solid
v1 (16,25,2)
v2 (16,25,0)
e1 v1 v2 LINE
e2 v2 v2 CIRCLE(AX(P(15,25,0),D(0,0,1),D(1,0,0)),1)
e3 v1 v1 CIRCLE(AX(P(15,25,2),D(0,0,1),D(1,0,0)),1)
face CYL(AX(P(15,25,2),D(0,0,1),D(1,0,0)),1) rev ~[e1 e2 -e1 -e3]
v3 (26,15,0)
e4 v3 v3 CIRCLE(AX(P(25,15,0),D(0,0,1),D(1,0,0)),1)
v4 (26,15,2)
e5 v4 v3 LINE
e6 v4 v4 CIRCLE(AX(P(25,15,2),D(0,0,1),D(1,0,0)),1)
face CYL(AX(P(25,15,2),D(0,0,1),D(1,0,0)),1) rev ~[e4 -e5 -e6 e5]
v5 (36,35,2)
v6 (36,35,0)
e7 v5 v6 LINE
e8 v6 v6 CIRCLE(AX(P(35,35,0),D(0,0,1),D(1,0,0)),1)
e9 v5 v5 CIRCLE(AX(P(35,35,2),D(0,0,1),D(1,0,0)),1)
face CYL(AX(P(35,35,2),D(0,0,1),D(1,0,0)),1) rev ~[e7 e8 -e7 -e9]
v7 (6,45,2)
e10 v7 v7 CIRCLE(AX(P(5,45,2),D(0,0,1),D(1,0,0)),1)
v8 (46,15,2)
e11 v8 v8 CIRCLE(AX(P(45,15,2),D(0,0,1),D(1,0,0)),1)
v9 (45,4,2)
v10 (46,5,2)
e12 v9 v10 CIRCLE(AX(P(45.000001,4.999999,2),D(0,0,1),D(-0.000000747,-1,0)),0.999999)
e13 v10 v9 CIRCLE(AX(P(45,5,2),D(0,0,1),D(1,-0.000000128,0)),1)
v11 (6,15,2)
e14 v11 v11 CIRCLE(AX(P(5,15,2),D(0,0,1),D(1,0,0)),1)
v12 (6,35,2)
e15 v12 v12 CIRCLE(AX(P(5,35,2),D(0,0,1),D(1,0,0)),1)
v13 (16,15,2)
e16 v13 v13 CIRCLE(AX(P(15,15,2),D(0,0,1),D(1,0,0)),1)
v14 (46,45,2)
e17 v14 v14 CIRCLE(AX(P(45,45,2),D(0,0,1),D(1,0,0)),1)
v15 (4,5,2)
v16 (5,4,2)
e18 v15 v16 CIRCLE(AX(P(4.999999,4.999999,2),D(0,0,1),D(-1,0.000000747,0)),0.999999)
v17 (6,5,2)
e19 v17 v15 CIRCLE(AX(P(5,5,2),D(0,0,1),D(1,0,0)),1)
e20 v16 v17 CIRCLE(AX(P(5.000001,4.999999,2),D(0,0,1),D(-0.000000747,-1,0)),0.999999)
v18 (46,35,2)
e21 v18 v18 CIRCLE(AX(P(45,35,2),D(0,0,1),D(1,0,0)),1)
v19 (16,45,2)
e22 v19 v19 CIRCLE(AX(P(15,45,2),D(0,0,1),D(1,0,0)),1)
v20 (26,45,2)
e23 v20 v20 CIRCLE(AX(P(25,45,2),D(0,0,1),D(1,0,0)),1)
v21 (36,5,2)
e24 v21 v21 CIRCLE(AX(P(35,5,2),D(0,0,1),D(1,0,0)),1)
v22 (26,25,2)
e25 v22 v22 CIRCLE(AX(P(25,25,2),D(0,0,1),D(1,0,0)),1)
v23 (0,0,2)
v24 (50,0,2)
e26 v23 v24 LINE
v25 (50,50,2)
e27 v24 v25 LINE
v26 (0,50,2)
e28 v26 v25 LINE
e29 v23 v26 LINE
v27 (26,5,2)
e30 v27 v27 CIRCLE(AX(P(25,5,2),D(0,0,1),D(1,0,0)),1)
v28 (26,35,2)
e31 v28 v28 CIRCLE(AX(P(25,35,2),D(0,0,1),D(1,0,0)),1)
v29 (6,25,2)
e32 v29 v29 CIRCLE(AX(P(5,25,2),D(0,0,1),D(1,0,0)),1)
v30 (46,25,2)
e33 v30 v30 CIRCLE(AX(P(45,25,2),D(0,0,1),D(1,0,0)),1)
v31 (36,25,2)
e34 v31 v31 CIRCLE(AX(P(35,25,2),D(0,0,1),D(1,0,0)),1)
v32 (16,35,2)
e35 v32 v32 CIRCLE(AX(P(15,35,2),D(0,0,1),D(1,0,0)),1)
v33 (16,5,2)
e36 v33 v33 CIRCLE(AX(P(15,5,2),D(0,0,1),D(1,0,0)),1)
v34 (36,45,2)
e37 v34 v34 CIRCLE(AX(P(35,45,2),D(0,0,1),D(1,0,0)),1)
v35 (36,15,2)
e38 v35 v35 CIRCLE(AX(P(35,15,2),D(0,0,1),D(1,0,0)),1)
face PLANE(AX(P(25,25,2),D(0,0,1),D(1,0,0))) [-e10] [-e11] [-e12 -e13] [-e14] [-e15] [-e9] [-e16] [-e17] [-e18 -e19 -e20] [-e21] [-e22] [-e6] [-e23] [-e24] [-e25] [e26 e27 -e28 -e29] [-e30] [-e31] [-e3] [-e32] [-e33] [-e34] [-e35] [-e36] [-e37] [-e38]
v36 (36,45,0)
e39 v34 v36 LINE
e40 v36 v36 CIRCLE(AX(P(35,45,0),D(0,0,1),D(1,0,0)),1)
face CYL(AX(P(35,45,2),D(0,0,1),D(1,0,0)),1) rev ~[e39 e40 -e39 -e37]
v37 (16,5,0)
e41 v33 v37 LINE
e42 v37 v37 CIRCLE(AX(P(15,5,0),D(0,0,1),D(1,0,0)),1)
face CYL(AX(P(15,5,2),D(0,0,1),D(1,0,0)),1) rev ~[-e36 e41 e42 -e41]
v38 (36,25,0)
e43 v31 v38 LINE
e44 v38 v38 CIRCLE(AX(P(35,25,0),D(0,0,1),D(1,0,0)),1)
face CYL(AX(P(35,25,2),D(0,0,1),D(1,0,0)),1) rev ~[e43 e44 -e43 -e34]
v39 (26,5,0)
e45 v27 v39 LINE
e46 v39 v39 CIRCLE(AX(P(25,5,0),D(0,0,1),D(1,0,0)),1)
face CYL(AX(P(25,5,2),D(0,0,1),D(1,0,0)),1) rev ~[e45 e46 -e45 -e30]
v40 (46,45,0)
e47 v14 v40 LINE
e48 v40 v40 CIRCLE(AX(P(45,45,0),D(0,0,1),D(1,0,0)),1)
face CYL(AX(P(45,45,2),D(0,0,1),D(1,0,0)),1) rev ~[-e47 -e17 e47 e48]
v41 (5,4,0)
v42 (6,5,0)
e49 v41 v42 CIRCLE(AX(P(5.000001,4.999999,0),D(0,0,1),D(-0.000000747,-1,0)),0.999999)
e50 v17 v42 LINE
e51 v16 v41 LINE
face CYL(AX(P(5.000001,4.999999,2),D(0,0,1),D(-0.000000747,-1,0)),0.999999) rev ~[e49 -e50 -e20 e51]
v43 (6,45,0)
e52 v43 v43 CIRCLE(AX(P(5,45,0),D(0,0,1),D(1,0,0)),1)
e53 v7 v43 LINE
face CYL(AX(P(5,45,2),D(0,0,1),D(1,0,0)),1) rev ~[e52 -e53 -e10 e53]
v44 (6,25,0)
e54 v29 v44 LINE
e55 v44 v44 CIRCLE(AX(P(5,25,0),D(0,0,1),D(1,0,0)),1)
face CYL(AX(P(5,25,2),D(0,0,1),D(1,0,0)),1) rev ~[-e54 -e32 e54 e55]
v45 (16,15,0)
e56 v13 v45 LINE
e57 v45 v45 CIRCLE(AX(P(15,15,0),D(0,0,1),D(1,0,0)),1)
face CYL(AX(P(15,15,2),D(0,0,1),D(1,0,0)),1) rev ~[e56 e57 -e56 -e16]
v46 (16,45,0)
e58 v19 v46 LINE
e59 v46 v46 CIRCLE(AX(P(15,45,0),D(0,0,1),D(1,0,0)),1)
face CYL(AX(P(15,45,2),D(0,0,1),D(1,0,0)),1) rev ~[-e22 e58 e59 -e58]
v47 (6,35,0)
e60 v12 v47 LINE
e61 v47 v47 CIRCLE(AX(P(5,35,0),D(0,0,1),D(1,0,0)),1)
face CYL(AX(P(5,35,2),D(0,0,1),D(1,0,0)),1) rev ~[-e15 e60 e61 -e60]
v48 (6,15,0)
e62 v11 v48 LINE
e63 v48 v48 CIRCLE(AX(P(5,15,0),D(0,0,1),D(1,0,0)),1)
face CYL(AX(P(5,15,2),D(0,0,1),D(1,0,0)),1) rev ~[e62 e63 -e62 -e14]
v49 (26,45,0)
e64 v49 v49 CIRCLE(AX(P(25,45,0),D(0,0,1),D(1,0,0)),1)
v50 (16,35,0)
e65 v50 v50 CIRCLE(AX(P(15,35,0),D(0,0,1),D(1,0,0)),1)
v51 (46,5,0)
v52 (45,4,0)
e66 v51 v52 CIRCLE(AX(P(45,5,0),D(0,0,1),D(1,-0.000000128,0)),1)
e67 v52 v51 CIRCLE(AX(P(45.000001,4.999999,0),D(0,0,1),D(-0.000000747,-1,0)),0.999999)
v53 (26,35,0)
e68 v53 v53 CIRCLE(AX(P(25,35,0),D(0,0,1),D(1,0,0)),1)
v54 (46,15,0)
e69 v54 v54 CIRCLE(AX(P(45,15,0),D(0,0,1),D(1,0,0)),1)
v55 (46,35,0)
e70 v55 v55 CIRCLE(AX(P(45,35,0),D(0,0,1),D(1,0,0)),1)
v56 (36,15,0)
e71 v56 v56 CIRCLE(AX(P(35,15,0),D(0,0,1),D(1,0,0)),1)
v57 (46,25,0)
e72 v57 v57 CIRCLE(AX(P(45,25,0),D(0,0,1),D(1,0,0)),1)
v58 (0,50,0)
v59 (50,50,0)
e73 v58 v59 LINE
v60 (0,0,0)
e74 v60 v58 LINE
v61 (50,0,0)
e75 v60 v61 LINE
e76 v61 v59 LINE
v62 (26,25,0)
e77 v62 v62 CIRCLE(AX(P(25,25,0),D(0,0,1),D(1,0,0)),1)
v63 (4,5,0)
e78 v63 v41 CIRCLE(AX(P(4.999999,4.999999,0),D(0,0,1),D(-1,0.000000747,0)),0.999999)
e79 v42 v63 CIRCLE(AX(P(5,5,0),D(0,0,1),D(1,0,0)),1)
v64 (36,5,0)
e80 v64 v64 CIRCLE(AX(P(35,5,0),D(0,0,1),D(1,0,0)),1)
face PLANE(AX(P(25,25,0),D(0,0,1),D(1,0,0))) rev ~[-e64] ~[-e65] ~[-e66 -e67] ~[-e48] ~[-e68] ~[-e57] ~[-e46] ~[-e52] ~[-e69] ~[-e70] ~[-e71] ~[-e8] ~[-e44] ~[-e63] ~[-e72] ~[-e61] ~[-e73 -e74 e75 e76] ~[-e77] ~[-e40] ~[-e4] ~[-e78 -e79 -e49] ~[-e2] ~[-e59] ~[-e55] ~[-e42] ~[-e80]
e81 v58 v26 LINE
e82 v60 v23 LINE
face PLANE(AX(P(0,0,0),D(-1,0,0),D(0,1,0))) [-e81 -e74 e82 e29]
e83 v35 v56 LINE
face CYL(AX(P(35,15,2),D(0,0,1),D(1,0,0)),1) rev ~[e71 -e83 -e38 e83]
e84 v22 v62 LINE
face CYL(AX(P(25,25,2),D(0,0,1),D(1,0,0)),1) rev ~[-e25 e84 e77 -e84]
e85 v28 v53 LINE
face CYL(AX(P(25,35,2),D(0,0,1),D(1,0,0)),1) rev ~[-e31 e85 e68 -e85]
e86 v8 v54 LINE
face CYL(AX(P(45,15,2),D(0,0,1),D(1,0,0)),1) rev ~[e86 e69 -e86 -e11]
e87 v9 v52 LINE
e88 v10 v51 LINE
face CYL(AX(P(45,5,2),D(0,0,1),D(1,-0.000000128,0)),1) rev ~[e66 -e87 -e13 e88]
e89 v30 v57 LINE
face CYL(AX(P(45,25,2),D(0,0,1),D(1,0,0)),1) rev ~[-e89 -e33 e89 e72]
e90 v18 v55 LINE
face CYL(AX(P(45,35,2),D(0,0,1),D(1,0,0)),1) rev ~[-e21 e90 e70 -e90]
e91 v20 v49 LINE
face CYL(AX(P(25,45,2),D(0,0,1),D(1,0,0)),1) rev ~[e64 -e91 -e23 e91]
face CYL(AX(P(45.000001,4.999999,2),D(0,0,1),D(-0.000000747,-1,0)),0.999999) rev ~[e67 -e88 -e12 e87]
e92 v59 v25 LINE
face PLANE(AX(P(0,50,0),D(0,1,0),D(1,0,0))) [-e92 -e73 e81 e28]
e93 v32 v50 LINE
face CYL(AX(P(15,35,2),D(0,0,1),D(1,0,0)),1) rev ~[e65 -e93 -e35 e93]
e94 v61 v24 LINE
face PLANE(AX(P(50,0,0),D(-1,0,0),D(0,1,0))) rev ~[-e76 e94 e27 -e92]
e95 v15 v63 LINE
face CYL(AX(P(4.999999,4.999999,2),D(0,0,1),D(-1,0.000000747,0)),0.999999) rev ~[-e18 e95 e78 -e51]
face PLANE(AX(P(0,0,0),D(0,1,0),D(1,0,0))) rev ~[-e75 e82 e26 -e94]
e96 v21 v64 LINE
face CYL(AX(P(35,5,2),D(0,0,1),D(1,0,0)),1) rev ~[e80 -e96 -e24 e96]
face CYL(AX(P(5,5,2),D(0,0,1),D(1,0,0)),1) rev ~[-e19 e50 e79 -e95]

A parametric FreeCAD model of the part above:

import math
import FreeCAD as App
import Part
import Sketcher
from FreeCAD import Vector
Q = App.Units.Quantity

doc = App.newDocument("Part")
body = doc.addObject("PartDesign::Body", "Body")

sketch1 = body.newObject("Sketcher::SketchObject", "Sketch")
sketch1.AttachmentSupport = (doc.getObject("XY_Plane"), [""])
sketch1.MapMode = "FlatFace"
sketch1.addGeometry([
    Part.LineSegment(Vector(0, 50, 0), Vector(0, 0, 0)),
    Part.LineSegment(Vector(0, 0, 0), Vector(50, 0, 0)),
    Part.LineSegment(Vector(50, 0, 0), Vector(50, 50, 0)),
    Part.LineSegment(Vector(50, 50, 0), Vector(0, 50, 0)),
], False)
sketch1.addConstraint([
    Sketcher.Constraint("Coincident", 0, 2, 1, 1),
    Sketcher.Constraint("Coincident", 1, 2, 2, 1),
    Sketcher.Constraint("Coincident", 2, 2, 3, 1),
    Sketcher.Constraint("Coincident", 3, 2, 0, 1),
    Sketcher.Constraint("Vertical", 0),
    Sketcher.Constraint("Horizontal", 1),
    Sketcher.Constraint("Vertical", 2),
    Sketcher.Constraint("Horizontal", 3),
    Sketcher.Constraint("Coincident", 0, 2, -1, 1),
    Sketcher.Constraint("Equal", 3, 0),
    Sketcher.Constraint("DistanceX", 1, 1, 1, 2, Q("50 mm")),
])
pad1 = body.newObject("PartDesign::Pad", "Pad")
pad1.Profile = sketch1
pad1.Length = 2

sketch2 = body.newObject("Sketcher::SketchObject", "Sketch001")
sketch2.AttachmentSupport = (doc.getObject("XY_Plane"), [""])
sketch2.MapMode = "FlatFace"
sketch2.AttachmentOffset = App.Placement(Vector(0, 0, 2), App.Rotation())
sketch2.addGeometry([
    Part.ArcOfCircle(Part.Circle(Vector(5, 5, 0), Vector(0, 0, 1), 1), math.radians(-90), math.radians(0)),
    Part.ArcOfCircle(Part.Circle(Vector(5, 5, 0), Vector(0, 0, 1), 1), math.radians(0), math.radians(180)),
    Part.ArcOfCircle(Part.Circle(Vector(5, 5, 0), Vector(0, 0, 1), 1), math.radians(180), math.radians(270)),
    Part.ArcOfCircle(Part.Circle(Vector(45, 5, 0), Vector(0, 0, 1), 1), math.radians(-90), math.radians(0)),
    Part.ArcOfCircle(Part.Circle(Vector(45, 5, 0), Vector(0, 0, 1), 1), math.radians(0), math.radians(270)),
    Part.Circle(Vector(5, 15, 0), Vector(0, 0, 1), 1),
    Part.Circle(Vector(5, 25, 0), Vector(0, 0, 1), 1),
    Part.Circle(Vector(5, 35, 0), Vector(0, 0, 1), 1),
    Part.Circle(Vector(5, 45, 0), Vector(0, 0, 1), 1),
    Part.Circle(Vector(15, 5, 0), Vector(0, 0, 1), 1),
    Part.Circle(Vector(15, 15, 0), Vector(0, 0, 1), 1),
    Part.Circle(Vector(15, 25, 0), Vector(0, 0, 1), 1),
    Part.Circle(Vector(15, 35, 0), Vector(0, 0, 1), 1),
    Part.Circle(Vector(15, 45, 0), Vector(0, 0, 1), 1),
    Part.Circle(Vector(25, 5, 0), Vector(0, 0, 1), 1),
    Part.Circle(Vector(25, 15, 0), Vector(0, 0, 1), 1),
    Part.Circle(Vector(25, 25, 0), Vector(0, 0, 1), 1),
    Part.Circle(Vector(25, 35, 0), Vector(0, 0, 1), 1),
    Part.Circle(Vector(25, 45, 0), Vector(0, 0, 1), 1),
    Part.Circle(Vector(35, 5, 0), Vector(0, 0, 1), 1),
    Part.Circle(Vector(35, 15, 0), Vector(0, 0, 1), 1),
    Part.Circle(Vector(35, 25, 0), Vector(0, 0, 1), 1),
    Part.Circle(Vector(35, 35, 0), Vector(0, 0, 1), 1),
    Part.Circle(Vector(35, 45, 0), Vector(0, 0, 1), 1),
    Part.Circle(Vector(45, 15, 0), Vector(0, 0, 1), 1),
    Part.Circle(Vector(45, 25, 0), Vector(0, 0, 1), 1),
    Part.Circle(Vector(45, 35, 0), Vector(0, 0, 1), 1),
    Part.Circle(Vector(45, 45, 0), Vector(0, 0, 1), 1),
], False)
sketch2.addConstraint([
    Sketcher.Constraint("Tangent", 0, 2, 1, 1),
    Sketcher.Constraint("Tangent", 1, 2, 2, 1),
    Sketcher.Constraint("Tangent", 2, 2, 0, 1),
    Sketcher.Constraint("Tangent", 3, 1, 4, 2),
    Sketcher.Constraint("Coincident", 4, 1, 3, 2),
    Sketcher.Constraint("Equal", 2, 3),
    Sketcher.Constraint("Equal", 4, 5),
    Sketcher.Constraint("Equal", 5, 6),
    Sketcher.Constraint("Equal", 6, 7),
    Sketcher.Constraint("Equal", 7, 8),
    Sketcher.Constraint("Equal", 8, 9),
    Sketcher.Constraint("Equal", 9, 10),
    Sketcher.Constraint("Equal", 10, 11),
    Sketcher.Constraint("Equal", 11, 12),
    Sketcher.Constraint("Equal", 12, 13),
    Sketcher.Constraint("Equal", 13, 14),
    Sketcher.Constraint("Equal", 14, 15),
    Sketcher.Constraint("Equal", 15, 16),
    Sketcher.Constraint("Equal", 16, 17),
    Sketcher.Constraint("Equal", 17, 18),
    Sketcher.Constraint("Equal", 18, 19),
    Sketcher.Constraint("Equal", 19, 20),
    Sketcher.Constraint("Equal", 20, 21),
    Sketcher.Constraint("Equal", 21, 22),
    Sketcher.Constraint("Equal", 22, 23),
    Sketcher.Constraint("Equal", 23, 24),
    Sketcher.Constraint("Equal", 24, 25),
    Sketcher.Constraint("Equal", 25, 26),
    Sketcher.Constraint("Equal", 26, 27),
    Sketcher.Constraint("Horizontal", 2, 3, 3, 3),
    Sketcher.Constraint("Horizontal", 4, 3, 9, 3),
    Sketcher.Constraint("Horizontal", 5, 3, 10, 3),
    Sketcher.Constraint("Horizontal", 6, 3, 11, 3),
    Sketcher.Constraint("Horizontal", 7, 3, 12, 3),
    Sketcher.Constraint("Horizontal", 8, 3, 13, 3),
    Sketcher.Constraint("Horizontal", 9, 3, 14, 3),
    Sketcher.Constraint("Horizontal", 10, 3, 15, 3),
    Sketcher.Constraint("Horizontal", 11, 3, 16, 3),
    Sketcher.Constraint("Horizontal", 12, 3, 17, 3),
    Sketcher.Constraint("Horizontal", 13, 3, 18, 3),
    Sketcher.Constraint("Horizontal", 14, 3, 19, 3),
    Sketcher.Constraint("Horizontal", 15, 3, 20, 3),
    Sketcher.Constraint("Horizontal", 16, 3, 21, 3),
    Sketcher.Constraint("Horizontal", 17, 3, 22, 3),
    Sketcher.Constraint("Horizontal", 18, 3, 23, 3),
    Sketcher.Constraint("Horizontal", 20, 3, 24, 3),
    Sketcher.Constraint("Horizontal", 21, 3, 25, 3),
    Sketcher.Constraint("Horizontal", 22, 3, 26, 3),
    Sketcher.Constraint("Horizontal", 23, 3, 27, 3),
    Sketcher.Constraint("Horizontal", 19, 3, 0, 2),
    Sketcher.Constraint("Horizontal", 0, 2, 1, 2),
    Sketcher.Constraint("Horizontal", 1, 2, 4, 1),
    Sketcher.Constraint("Vertical", 2, 3, 5, 3),
    Sketcher.Constraint("Vertical", 5, 3, 6, 3),
    Sketcher.Constraint("Vertical", 6, 3, 7, 3),
    Sketcher.Constraint("Vertical", 7, 3, 8, 3),
    Sketcher.Constraint("Vertical", 9, 3, 10, 3),
    Sketcher.Constraint("Vertical", 10, 3, 11, 3),
    Sketcher.Constraint("Vertical", 11, 3, 12, 3),
    Sketcher.Constraint("Vertical", 12, 3, 13, 3),
    Sketcher.Constraint("Vertical", 14, 3, 15, 3),
    Sketcher.Constraint("Vertical", 15, 3, 16, 3),
    Sketcher.Constraint("Vertical", 16, 3, 17, 3),
    Sketcher.Constraint("Vertical", 17, 3, 18, 3),
    Sketcher.Constraint("Vertical", 19, 3, 20, 3),
    Sketcher.Constraint("Vertical", 20, 3, 21, 3),
    Sketcher.Constraint("Vertical", 21, 3, 22, 3),
    Sketcher.Constraint("Vertical", 22, 3, 23, 3),
    Sketcher.Constraint("Vertical", 4, 3, 24, 3),
    Sketcher.Constraint("Vertical", 24, 3, 25, 3),
    Sketcher.Constraint("Vertical", 25, 3, 26, 3),
    Sketcher.Constraint("Vertical", 26, 3, 27, 3),
    Sketcher.Constraint("Vertical", 8, 3, 2, 2),
    Sketcher.Constraint("Vertical", 27, 3, 3, 1),
    Sketcher.Constraint("Diameter", 5, Q("2 mm")),
    Sketcher.Constraint("DistanceX", -1, 1, 0, 3, Q("5.000001 mm")),
    Sketcher.Constraint("DistanceY", -1, 1, 0, 3, Q("4.999999 mm")),
    Sketcher.Constraint("DistanceX", -1, 1, 3, 3, Q("45.000001 mm")),
    Sketcher.Constraint("DistanceY", -1, 1, 5, 3, Q("15 mm")),
    Sketcher.Constraint("DistanceY", -1, 1, 6, 3, Q("25 mm")),
    Sketcher.Constraint("DistanceY", -1, 1, 7, 3, Q("35 mm")),
    Sketcher.Constraint("DistanceY", -1, 1, 8, 3, Q("45 mm")),
    Sketcher.Constraint("DistanceX", -1, 1, 9, 3, Q("15 mm")),
    Sketcher.Constraint("DistanceX", -1, 1, 14, 3, Q("25 mm")),
    Sketcher.Constraint("DistanceX", -1, 1, 19, 3, Q("35 mm")),
])
pocket1 = body.newObject("PartDesign::Pocket", "Pocket")
pocket1.Profile = sketch2
pocket1.Length = 25

doc.recompute()
